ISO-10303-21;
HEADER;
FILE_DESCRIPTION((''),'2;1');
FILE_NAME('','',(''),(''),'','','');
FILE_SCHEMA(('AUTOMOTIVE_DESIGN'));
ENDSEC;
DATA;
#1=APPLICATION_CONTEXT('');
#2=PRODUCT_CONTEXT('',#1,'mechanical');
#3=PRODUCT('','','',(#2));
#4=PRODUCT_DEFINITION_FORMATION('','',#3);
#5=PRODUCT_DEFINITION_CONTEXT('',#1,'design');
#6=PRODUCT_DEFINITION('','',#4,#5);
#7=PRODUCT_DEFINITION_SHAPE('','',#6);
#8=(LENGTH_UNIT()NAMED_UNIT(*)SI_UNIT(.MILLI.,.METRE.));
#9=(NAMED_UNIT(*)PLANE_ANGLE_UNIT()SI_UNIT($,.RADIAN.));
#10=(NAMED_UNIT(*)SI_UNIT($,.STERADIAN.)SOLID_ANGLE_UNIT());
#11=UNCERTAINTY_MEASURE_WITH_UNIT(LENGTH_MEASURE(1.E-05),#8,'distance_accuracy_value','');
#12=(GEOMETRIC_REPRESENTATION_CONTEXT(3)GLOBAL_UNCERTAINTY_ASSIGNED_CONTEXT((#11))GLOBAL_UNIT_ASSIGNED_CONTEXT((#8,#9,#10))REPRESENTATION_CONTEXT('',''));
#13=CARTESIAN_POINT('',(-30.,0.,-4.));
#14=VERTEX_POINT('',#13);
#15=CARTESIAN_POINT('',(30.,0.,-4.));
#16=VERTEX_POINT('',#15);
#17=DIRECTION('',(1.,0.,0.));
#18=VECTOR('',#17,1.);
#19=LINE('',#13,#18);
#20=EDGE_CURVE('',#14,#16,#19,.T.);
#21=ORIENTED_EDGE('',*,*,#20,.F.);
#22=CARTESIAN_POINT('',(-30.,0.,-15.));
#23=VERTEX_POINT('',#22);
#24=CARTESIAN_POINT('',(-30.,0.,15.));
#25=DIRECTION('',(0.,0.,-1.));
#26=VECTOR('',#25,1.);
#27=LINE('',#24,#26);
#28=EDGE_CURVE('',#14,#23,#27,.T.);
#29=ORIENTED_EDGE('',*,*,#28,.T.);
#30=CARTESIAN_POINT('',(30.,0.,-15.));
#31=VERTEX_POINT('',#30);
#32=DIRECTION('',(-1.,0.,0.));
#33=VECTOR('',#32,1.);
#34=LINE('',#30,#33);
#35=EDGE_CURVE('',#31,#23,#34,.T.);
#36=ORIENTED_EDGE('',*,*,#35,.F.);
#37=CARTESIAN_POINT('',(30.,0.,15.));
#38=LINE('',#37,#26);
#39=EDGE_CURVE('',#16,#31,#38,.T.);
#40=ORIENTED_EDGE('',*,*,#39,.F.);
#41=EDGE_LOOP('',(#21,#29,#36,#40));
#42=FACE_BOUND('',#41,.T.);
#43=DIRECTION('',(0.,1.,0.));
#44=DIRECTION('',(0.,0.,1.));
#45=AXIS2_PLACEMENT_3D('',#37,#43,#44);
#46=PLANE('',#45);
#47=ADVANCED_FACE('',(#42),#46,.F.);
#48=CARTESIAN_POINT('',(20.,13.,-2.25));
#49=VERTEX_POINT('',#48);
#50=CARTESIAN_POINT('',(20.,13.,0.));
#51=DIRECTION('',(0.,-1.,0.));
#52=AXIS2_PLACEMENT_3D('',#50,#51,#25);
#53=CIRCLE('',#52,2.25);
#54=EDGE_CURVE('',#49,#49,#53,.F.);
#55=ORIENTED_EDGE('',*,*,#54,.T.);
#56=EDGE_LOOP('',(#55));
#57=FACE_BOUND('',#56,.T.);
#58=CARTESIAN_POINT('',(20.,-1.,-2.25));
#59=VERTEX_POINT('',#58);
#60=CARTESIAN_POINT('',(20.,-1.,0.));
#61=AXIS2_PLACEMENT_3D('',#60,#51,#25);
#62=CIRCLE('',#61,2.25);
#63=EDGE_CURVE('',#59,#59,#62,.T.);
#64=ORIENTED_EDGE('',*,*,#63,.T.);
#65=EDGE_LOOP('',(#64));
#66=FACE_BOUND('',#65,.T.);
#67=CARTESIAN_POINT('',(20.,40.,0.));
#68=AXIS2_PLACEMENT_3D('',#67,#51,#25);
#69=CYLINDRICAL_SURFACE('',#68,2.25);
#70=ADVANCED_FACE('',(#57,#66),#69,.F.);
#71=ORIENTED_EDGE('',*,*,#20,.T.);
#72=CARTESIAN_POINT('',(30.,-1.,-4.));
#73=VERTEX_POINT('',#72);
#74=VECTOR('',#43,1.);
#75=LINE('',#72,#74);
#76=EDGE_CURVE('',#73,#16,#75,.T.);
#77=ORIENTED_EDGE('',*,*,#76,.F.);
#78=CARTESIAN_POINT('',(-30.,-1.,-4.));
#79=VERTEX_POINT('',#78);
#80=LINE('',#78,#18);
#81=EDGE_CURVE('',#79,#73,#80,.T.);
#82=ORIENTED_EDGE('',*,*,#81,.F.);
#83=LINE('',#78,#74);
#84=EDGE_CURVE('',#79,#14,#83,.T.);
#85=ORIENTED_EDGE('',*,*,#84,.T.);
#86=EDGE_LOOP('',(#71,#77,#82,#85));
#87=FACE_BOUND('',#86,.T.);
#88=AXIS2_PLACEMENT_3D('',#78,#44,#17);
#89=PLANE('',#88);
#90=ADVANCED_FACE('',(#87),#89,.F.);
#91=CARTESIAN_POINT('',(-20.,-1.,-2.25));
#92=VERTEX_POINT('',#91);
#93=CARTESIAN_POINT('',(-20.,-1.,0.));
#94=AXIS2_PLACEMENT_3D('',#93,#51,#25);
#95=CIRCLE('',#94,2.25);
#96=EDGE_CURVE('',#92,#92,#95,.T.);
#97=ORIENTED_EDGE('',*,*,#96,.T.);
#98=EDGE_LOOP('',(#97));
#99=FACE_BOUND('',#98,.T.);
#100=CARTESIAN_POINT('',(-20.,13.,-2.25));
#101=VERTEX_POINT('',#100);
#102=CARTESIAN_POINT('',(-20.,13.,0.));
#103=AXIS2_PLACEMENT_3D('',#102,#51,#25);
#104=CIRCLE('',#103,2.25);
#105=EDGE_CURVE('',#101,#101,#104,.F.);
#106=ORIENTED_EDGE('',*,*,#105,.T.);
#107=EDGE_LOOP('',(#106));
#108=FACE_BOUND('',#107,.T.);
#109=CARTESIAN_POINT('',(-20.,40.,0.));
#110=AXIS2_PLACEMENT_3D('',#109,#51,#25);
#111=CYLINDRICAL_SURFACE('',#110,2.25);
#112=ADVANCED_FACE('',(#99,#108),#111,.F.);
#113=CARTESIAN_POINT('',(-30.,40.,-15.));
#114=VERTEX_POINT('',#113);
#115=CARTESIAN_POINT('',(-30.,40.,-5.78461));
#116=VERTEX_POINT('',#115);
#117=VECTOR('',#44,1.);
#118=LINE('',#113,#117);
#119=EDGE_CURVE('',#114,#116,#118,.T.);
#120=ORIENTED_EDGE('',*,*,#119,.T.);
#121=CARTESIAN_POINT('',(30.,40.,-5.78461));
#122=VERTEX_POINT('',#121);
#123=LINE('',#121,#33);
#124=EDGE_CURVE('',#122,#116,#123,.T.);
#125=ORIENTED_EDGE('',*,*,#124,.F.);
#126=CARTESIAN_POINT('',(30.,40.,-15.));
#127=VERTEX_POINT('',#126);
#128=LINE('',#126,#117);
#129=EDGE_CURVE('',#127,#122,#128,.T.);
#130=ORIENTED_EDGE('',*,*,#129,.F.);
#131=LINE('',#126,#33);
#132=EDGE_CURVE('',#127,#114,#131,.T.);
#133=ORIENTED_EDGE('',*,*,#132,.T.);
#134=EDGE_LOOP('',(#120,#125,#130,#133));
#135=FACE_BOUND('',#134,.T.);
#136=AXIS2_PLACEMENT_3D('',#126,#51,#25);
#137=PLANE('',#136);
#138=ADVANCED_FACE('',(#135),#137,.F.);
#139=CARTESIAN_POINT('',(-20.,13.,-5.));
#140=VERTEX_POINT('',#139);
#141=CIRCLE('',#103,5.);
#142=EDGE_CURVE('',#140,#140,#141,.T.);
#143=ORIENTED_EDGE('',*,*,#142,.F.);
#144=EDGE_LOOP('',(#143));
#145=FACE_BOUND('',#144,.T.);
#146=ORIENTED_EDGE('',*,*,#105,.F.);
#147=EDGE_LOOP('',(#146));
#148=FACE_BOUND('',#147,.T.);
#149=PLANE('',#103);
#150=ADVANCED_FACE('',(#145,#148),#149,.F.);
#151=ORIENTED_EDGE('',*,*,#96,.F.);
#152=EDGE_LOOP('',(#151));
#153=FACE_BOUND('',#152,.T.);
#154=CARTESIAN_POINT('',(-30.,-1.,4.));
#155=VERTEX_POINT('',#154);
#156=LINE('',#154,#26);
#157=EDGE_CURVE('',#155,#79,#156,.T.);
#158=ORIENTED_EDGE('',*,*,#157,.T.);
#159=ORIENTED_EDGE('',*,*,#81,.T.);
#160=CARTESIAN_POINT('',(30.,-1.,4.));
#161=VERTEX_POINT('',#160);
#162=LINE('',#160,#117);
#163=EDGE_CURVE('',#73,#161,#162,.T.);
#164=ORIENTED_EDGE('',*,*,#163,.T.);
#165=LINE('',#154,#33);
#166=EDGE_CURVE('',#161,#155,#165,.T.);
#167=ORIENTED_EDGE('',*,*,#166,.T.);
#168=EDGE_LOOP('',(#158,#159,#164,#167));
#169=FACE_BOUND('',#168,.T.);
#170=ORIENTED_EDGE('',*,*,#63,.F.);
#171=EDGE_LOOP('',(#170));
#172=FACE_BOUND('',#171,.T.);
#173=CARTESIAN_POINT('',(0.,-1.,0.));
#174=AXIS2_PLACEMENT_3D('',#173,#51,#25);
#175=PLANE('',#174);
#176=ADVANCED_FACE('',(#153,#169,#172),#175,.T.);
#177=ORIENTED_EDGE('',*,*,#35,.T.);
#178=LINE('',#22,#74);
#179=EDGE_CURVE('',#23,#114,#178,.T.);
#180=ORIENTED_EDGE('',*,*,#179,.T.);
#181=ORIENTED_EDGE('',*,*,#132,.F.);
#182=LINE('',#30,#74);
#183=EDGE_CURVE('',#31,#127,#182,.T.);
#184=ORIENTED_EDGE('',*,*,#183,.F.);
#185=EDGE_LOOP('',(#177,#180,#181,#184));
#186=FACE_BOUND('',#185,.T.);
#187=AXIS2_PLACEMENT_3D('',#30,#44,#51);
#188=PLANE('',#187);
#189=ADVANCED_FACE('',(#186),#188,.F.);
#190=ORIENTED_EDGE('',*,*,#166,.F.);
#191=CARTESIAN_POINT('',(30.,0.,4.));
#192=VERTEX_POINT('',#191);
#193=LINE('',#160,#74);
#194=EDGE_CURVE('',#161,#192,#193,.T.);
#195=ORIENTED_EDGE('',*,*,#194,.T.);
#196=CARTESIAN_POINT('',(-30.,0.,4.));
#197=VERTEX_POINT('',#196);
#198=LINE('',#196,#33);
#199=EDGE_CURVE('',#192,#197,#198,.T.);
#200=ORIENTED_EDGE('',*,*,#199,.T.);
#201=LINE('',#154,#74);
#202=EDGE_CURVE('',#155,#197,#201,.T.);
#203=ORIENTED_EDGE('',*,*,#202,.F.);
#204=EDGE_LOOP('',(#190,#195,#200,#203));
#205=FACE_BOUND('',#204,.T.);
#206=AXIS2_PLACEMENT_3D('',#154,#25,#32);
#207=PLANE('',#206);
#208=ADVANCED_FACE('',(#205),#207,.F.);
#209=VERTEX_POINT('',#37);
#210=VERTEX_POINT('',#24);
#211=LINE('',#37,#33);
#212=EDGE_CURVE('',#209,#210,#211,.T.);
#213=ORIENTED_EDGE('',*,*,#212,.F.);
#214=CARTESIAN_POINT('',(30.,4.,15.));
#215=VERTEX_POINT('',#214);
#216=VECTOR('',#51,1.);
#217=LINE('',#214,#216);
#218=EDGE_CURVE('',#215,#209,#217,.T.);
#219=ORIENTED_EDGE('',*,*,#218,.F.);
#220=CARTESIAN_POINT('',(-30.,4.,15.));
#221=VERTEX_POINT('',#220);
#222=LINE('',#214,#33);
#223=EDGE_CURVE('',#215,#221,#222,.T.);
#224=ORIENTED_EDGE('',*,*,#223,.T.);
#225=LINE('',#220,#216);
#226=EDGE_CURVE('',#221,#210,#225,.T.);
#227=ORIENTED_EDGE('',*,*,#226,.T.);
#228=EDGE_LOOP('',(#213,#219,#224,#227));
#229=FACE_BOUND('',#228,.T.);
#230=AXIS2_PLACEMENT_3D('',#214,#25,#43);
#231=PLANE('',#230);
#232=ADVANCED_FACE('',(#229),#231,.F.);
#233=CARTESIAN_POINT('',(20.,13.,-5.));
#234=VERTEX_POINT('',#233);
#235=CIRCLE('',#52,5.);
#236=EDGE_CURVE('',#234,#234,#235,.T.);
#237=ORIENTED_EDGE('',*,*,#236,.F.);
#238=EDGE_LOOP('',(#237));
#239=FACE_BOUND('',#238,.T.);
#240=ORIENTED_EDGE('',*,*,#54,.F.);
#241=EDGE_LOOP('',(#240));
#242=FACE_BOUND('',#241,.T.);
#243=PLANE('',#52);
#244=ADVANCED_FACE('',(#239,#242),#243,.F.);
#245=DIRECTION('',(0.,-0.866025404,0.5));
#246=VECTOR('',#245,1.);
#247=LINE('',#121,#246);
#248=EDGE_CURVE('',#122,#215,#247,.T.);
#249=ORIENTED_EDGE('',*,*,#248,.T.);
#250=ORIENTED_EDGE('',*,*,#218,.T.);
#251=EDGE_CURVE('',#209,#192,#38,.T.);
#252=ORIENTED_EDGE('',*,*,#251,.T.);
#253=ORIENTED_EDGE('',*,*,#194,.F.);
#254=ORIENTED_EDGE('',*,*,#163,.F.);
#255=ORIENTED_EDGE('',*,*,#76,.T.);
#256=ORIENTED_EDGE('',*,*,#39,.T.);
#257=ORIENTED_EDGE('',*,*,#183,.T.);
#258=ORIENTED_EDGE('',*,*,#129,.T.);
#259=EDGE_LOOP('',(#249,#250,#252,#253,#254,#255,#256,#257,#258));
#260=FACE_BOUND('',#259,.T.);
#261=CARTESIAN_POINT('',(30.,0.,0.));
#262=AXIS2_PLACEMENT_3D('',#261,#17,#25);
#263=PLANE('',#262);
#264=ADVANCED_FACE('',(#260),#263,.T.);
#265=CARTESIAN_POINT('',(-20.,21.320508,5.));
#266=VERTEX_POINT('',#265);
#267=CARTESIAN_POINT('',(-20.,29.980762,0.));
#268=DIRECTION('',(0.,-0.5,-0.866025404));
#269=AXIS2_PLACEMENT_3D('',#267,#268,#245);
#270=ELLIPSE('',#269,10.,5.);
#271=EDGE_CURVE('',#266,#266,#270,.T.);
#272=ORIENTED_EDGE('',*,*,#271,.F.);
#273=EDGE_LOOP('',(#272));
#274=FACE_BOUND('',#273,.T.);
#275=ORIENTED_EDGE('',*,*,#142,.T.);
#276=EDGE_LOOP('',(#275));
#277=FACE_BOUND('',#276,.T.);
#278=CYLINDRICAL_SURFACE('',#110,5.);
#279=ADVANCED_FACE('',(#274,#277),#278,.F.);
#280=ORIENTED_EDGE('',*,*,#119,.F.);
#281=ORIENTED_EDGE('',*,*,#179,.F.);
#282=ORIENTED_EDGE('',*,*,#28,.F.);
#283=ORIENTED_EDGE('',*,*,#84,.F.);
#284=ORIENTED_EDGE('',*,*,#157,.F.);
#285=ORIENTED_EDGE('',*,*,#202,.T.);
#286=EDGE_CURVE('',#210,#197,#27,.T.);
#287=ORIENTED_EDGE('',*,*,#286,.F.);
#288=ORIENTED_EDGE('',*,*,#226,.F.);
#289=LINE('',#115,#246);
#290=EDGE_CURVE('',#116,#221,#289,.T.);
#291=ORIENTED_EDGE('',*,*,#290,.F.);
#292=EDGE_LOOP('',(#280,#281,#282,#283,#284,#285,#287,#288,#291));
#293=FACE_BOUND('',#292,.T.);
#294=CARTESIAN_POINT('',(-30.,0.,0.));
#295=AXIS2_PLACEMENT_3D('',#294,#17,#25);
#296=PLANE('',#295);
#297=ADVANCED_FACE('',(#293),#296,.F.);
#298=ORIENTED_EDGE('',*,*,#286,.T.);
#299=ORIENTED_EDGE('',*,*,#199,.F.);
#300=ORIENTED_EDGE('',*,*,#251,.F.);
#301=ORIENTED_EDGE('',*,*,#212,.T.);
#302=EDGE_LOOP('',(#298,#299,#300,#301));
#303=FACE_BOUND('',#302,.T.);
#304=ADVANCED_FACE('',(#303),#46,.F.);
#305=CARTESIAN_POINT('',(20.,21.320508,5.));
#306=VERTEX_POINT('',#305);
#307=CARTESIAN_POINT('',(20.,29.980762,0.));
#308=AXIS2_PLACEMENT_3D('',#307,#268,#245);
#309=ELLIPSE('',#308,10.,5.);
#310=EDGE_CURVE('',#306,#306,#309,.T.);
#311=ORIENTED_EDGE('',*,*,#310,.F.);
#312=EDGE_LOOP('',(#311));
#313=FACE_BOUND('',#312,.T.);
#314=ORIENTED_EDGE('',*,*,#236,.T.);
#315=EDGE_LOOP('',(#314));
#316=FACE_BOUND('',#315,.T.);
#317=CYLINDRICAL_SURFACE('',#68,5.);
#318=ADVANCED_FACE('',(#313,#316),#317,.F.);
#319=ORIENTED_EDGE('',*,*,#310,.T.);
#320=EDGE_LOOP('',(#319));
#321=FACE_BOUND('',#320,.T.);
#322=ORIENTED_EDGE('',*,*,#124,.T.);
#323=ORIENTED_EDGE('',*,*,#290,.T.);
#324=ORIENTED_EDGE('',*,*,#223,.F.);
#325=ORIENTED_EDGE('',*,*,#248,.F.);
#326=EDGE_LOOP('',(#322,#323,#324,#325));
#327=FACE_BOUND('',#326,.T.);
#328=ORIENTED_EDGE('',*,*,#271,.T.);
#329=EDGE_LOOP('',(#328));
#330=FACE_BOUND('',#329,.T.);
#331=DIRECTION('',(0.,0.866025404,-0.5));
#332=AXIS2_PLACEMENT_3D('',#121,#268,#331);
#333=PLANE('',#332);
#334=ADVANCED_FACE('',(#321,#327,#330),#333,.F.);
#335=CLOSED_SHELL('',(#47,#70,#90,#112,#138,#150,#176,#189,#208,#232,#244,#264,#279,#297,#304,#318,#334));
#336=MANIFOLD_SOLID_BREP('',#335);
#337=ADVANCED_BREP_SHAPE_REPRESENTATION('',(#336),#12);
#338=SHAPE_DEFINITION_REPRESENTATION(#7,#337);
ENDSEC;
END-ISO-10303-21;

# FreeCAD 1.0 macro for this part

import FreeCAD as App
import Part
import Sketcher
Q = App.Units.Quantity

doc = App.newDocument("Part")
body = doc.addObject("PartDesign::Body", "Body")

# Sketch on YZ plane
sketch1 = body.newObject("Sketcher::SketchObject", "Sketch")
sketch1.AttachmentSupport = (doc.getObject("YZ_Plane"), [""])
sketch1.MapMode = "FlatFace"
sketch1.addGeometry(Part.LineSegment(App.Vector(0, 15, 0), App.Vector(0, -15, 0)), False)
sketch1.addGeometry(Part.LineSegment(App.Vector(0, -15, 0), App.Vector(40, -15, 0)), False)
sketch1.addGeometry(Part.LineSegment(App.Vector(40, -15, 0), App.Vector(40, -5.8, 0)), False)
sketch1.addGeometry(Part.LineSegment(App.Vector(40, -5.8, 0), App.Vector(4, 15, 0)), False)
sketch1.addGeometry(Part.LineSegment(App.Vector(4, 15, 0), App.Vector(0, 15, 0)), False)
sketch1.addConstraint(Sketcher.Constraint("Coincident", 0, 2, 1, 1))
sketch1.addConstraint(Sketcher.Constraint("Coincident", 1, 2, 2, 1))
sketch1.addConstraint(Sketcher.Constraint("Coincident", 2, 2, 3, 1))
sketch1.addConstraint(Sketcher.Constraint("Coincident", 3, 2, 4, 1))
sketch1.addConstraint(Sketcher.Constraint("Coincident", 4, 2, 0, 1))
sketch1.addConstraint(Sketcher.Constraint("Vertical", 0))
sketch1.addConstraint(Sketcher.Constraint("Horizontal", 1))
sketch1.addConstraint(Sketcher.Constraint("Vertical", 2))
sketch1.addConstraint(Sketcher.Constraint("Horizontal", 4))
sketch1.addConstraint(Sketcher.Constraint("Symmetric", 0, 2, 4, 2, -1, 1))
sketch1.addConstraint(Sketcher.Constraint("DistanceX", 1, 1, 1, 2, 40.0))
sketch1.addConstraint(Sketcher.Constraint("DistanceX", 4, 2, 4, 1, 4.0))
sketch1.addConstraint(Sketcher.Constraint("DistanceY", 0, 2, 0, 1, 30.0))
sketch1.addConstraint(Sketcher.Constraint("Angle", 3, Q("150 deg")))
pad1 = body.newObject("PartDesign::Pad", "Pad")
pad1.Profile = sketch1
pad1.Length = 60
pad1.Midplane = True

# Sketch on XZ plane
sketch2 = body.newObject("Sketcher::SketchObject", "Sketch001")
sketch2.AttachmentSupport = (doc.getObject("XZ_Plane"), [""])
sketch2.MapMode = "FlatFace"
sketch2.addGeometry(Part.Circle(App.Vector(-20, 0, 0), App.Vector(0, 0, 1), 2.2), False)
sketch2.addGeometry(Part.Circle(App.Vector(20, 0, 0), App.Vector(0, 0, 1), 2.2), False)
sketch2.addConstraint(Sketcher.Constraint("Equal", 0, 1))
sketch2.addConstraint(Sketcher.Constraint("Symmetric", 0, 3, 1, 3, -1, 1))
sketch2.addConstraint(Sketcher.Constraint("PointOnObject", 0, 3, -1))
sketch2.addConstraint(Sketcher.Constraint("Diameter", 0, 4.5))
sketch2.addConstraint(Sketcher.Constraint("DistanceX", 0, 3, -1, 1, 20.0))
pocket1 = body.newObject("PartDesign::Pocket", "Pocket")
pocket1.Profile = sketch2
pocket1.Type = "ThroughAll"

# Sketch on XZ plane
sketch3 = body.newObject("Sketcher::SketchObject", "Sketch002")
sketch3.AttachmentSupport = (doc.getObject("XZ_Plane"), [""])
sketch3.MapMode = "FlatFace"
sketch3.AttachmentOffset = App.Placement(App.Vector(0, 0, -13), App.Rotation())
sketch3.addGeometry(Part.Circle(App.Vector(-20, 0, 0), App.Vector(0, 0, 1), 5), False)
sketch3.addGeometry(Part.Circle(App.Vector(20, 0, 0), App.Vector(0, 0, 1), 5), False)
sketch3.addConstraint(Sketcher.Constraint("Equal", 0, 1))
sketch3.addConstraint(Sketcher.Constraint("Symmetric", 0, 3, 1, 3, -1, 1))
sketch3.addConstraint(Sketcher.Constraint("PointOnObject", 0, 3, -1))
sketch3.addConstraint(Sketcher.Constraint("Diameter", 0, 10.0))
sketch3.addConstraint(Sketcher.Constraint("DistanceX", 0, 3, -1, 1, 20.0))
pocket2 = body.newObject("PartDesign::Pocket", "Pocket001")
pocket2.Profile = sketch3
pocket2.Type = "ThroughAll"

# Sketch on XZ plane
sketch4 = body.newObject("Sketcher::SketchObject", "Sketch003")
sketch4.AttachmentSupport = (doc.getObject("XZ_Plane"), [""])
sketch4.MapMode = "FlatFace"
sketch4.AttachmentOffset = App.Placement(App.Vector(0, 0, 1), App.Rotation())
sketch4.addGeometry(Part.LineSegment(App.Vector(-30, 4, 0), App.Vector(-30, -4, 0)), False)
sketch4.addGeometry(Part.LineSegment(App.Vector(-30, -4, 0), App.Vector(30, -4, 0)), False)
sketch4.addGeometry(Part.LineSegment(App.Vector(30, -4, 0), App.Vector(30, 4, 0)), False)
sketch4.addGeometry(Part.LineSegment(App.Vector(30, 4, 0), App.Vector(-30, 4, 0)), False)
sketch4.addGeometry(Part.Circle(App.Vector(-20, 0, 0), App.Vector(0, 0, 1), 2.2), False)
sketch4.addGeometry(Part.Circle(App.Vector(20, 0, 0), App.Vector(0, 0, 1), 2.2), False)
sketch4.addConstraint(Sketcher.Constraint("Coincident", 0, 2, 1, 1))
sketch4.addConstraint(Sketcher.Constraint("Coincident", 1, 2, 2, 1))
sketch4.addConstraint(Sketcher.Constraint("Coincident", 2, 2, 3, 1))
sketch4.addConstraint(Sketcher.Constraint("Coincident", 3, 2, 0, 1))
sketch4.addConstraint(Sketcher.Constraint("Vertical", 0))
sketch4.addConstraint(Sketcher.Constraint("Horizontal", 1))
sketch4.addConstraint(Sketcher.Constraint("Vertical", 2))
sketch4.addConstraint(Sketcher.Constraint("Horizontal", 3))
sketch4.addConstraint(Sketcher.Constraint("Equal", 4, 5))
sketch4.addConstraint(Sketcher.Constraint("Symmetric", 4, 3, 5, 3, -1, 1))
sketch4.addConstraint(Sketcher.Constraint("Symmetric", 0, 2, 2, 2, -1, 1))
sketch4.addConstraint(Sketcher.Constraint("PointOnObject", 4, 3, -1))
sketch4.addConstraint(Sketcher.Constraint("Diameter", 4, 4.5))
sketch4.addConstraint(Sketcher.Constraint("DistanceX", 1, 1, 1, 2, 60.0))
sketch4.addConstraint(Sketcher.Constraint("DistanceY", 0, 2, 0, 1, 8.0))
sketch4.addConstraint(Sketcher.Constraint("DistanceX", 4, 3, -1, 1, 20.0))
pad2 = body.newObject("PartDesign::Pad", "Pad001")
pad2.Profile = sketch4
pad2.Length = 1
pad2.Reversed = True

doc.recompute()
